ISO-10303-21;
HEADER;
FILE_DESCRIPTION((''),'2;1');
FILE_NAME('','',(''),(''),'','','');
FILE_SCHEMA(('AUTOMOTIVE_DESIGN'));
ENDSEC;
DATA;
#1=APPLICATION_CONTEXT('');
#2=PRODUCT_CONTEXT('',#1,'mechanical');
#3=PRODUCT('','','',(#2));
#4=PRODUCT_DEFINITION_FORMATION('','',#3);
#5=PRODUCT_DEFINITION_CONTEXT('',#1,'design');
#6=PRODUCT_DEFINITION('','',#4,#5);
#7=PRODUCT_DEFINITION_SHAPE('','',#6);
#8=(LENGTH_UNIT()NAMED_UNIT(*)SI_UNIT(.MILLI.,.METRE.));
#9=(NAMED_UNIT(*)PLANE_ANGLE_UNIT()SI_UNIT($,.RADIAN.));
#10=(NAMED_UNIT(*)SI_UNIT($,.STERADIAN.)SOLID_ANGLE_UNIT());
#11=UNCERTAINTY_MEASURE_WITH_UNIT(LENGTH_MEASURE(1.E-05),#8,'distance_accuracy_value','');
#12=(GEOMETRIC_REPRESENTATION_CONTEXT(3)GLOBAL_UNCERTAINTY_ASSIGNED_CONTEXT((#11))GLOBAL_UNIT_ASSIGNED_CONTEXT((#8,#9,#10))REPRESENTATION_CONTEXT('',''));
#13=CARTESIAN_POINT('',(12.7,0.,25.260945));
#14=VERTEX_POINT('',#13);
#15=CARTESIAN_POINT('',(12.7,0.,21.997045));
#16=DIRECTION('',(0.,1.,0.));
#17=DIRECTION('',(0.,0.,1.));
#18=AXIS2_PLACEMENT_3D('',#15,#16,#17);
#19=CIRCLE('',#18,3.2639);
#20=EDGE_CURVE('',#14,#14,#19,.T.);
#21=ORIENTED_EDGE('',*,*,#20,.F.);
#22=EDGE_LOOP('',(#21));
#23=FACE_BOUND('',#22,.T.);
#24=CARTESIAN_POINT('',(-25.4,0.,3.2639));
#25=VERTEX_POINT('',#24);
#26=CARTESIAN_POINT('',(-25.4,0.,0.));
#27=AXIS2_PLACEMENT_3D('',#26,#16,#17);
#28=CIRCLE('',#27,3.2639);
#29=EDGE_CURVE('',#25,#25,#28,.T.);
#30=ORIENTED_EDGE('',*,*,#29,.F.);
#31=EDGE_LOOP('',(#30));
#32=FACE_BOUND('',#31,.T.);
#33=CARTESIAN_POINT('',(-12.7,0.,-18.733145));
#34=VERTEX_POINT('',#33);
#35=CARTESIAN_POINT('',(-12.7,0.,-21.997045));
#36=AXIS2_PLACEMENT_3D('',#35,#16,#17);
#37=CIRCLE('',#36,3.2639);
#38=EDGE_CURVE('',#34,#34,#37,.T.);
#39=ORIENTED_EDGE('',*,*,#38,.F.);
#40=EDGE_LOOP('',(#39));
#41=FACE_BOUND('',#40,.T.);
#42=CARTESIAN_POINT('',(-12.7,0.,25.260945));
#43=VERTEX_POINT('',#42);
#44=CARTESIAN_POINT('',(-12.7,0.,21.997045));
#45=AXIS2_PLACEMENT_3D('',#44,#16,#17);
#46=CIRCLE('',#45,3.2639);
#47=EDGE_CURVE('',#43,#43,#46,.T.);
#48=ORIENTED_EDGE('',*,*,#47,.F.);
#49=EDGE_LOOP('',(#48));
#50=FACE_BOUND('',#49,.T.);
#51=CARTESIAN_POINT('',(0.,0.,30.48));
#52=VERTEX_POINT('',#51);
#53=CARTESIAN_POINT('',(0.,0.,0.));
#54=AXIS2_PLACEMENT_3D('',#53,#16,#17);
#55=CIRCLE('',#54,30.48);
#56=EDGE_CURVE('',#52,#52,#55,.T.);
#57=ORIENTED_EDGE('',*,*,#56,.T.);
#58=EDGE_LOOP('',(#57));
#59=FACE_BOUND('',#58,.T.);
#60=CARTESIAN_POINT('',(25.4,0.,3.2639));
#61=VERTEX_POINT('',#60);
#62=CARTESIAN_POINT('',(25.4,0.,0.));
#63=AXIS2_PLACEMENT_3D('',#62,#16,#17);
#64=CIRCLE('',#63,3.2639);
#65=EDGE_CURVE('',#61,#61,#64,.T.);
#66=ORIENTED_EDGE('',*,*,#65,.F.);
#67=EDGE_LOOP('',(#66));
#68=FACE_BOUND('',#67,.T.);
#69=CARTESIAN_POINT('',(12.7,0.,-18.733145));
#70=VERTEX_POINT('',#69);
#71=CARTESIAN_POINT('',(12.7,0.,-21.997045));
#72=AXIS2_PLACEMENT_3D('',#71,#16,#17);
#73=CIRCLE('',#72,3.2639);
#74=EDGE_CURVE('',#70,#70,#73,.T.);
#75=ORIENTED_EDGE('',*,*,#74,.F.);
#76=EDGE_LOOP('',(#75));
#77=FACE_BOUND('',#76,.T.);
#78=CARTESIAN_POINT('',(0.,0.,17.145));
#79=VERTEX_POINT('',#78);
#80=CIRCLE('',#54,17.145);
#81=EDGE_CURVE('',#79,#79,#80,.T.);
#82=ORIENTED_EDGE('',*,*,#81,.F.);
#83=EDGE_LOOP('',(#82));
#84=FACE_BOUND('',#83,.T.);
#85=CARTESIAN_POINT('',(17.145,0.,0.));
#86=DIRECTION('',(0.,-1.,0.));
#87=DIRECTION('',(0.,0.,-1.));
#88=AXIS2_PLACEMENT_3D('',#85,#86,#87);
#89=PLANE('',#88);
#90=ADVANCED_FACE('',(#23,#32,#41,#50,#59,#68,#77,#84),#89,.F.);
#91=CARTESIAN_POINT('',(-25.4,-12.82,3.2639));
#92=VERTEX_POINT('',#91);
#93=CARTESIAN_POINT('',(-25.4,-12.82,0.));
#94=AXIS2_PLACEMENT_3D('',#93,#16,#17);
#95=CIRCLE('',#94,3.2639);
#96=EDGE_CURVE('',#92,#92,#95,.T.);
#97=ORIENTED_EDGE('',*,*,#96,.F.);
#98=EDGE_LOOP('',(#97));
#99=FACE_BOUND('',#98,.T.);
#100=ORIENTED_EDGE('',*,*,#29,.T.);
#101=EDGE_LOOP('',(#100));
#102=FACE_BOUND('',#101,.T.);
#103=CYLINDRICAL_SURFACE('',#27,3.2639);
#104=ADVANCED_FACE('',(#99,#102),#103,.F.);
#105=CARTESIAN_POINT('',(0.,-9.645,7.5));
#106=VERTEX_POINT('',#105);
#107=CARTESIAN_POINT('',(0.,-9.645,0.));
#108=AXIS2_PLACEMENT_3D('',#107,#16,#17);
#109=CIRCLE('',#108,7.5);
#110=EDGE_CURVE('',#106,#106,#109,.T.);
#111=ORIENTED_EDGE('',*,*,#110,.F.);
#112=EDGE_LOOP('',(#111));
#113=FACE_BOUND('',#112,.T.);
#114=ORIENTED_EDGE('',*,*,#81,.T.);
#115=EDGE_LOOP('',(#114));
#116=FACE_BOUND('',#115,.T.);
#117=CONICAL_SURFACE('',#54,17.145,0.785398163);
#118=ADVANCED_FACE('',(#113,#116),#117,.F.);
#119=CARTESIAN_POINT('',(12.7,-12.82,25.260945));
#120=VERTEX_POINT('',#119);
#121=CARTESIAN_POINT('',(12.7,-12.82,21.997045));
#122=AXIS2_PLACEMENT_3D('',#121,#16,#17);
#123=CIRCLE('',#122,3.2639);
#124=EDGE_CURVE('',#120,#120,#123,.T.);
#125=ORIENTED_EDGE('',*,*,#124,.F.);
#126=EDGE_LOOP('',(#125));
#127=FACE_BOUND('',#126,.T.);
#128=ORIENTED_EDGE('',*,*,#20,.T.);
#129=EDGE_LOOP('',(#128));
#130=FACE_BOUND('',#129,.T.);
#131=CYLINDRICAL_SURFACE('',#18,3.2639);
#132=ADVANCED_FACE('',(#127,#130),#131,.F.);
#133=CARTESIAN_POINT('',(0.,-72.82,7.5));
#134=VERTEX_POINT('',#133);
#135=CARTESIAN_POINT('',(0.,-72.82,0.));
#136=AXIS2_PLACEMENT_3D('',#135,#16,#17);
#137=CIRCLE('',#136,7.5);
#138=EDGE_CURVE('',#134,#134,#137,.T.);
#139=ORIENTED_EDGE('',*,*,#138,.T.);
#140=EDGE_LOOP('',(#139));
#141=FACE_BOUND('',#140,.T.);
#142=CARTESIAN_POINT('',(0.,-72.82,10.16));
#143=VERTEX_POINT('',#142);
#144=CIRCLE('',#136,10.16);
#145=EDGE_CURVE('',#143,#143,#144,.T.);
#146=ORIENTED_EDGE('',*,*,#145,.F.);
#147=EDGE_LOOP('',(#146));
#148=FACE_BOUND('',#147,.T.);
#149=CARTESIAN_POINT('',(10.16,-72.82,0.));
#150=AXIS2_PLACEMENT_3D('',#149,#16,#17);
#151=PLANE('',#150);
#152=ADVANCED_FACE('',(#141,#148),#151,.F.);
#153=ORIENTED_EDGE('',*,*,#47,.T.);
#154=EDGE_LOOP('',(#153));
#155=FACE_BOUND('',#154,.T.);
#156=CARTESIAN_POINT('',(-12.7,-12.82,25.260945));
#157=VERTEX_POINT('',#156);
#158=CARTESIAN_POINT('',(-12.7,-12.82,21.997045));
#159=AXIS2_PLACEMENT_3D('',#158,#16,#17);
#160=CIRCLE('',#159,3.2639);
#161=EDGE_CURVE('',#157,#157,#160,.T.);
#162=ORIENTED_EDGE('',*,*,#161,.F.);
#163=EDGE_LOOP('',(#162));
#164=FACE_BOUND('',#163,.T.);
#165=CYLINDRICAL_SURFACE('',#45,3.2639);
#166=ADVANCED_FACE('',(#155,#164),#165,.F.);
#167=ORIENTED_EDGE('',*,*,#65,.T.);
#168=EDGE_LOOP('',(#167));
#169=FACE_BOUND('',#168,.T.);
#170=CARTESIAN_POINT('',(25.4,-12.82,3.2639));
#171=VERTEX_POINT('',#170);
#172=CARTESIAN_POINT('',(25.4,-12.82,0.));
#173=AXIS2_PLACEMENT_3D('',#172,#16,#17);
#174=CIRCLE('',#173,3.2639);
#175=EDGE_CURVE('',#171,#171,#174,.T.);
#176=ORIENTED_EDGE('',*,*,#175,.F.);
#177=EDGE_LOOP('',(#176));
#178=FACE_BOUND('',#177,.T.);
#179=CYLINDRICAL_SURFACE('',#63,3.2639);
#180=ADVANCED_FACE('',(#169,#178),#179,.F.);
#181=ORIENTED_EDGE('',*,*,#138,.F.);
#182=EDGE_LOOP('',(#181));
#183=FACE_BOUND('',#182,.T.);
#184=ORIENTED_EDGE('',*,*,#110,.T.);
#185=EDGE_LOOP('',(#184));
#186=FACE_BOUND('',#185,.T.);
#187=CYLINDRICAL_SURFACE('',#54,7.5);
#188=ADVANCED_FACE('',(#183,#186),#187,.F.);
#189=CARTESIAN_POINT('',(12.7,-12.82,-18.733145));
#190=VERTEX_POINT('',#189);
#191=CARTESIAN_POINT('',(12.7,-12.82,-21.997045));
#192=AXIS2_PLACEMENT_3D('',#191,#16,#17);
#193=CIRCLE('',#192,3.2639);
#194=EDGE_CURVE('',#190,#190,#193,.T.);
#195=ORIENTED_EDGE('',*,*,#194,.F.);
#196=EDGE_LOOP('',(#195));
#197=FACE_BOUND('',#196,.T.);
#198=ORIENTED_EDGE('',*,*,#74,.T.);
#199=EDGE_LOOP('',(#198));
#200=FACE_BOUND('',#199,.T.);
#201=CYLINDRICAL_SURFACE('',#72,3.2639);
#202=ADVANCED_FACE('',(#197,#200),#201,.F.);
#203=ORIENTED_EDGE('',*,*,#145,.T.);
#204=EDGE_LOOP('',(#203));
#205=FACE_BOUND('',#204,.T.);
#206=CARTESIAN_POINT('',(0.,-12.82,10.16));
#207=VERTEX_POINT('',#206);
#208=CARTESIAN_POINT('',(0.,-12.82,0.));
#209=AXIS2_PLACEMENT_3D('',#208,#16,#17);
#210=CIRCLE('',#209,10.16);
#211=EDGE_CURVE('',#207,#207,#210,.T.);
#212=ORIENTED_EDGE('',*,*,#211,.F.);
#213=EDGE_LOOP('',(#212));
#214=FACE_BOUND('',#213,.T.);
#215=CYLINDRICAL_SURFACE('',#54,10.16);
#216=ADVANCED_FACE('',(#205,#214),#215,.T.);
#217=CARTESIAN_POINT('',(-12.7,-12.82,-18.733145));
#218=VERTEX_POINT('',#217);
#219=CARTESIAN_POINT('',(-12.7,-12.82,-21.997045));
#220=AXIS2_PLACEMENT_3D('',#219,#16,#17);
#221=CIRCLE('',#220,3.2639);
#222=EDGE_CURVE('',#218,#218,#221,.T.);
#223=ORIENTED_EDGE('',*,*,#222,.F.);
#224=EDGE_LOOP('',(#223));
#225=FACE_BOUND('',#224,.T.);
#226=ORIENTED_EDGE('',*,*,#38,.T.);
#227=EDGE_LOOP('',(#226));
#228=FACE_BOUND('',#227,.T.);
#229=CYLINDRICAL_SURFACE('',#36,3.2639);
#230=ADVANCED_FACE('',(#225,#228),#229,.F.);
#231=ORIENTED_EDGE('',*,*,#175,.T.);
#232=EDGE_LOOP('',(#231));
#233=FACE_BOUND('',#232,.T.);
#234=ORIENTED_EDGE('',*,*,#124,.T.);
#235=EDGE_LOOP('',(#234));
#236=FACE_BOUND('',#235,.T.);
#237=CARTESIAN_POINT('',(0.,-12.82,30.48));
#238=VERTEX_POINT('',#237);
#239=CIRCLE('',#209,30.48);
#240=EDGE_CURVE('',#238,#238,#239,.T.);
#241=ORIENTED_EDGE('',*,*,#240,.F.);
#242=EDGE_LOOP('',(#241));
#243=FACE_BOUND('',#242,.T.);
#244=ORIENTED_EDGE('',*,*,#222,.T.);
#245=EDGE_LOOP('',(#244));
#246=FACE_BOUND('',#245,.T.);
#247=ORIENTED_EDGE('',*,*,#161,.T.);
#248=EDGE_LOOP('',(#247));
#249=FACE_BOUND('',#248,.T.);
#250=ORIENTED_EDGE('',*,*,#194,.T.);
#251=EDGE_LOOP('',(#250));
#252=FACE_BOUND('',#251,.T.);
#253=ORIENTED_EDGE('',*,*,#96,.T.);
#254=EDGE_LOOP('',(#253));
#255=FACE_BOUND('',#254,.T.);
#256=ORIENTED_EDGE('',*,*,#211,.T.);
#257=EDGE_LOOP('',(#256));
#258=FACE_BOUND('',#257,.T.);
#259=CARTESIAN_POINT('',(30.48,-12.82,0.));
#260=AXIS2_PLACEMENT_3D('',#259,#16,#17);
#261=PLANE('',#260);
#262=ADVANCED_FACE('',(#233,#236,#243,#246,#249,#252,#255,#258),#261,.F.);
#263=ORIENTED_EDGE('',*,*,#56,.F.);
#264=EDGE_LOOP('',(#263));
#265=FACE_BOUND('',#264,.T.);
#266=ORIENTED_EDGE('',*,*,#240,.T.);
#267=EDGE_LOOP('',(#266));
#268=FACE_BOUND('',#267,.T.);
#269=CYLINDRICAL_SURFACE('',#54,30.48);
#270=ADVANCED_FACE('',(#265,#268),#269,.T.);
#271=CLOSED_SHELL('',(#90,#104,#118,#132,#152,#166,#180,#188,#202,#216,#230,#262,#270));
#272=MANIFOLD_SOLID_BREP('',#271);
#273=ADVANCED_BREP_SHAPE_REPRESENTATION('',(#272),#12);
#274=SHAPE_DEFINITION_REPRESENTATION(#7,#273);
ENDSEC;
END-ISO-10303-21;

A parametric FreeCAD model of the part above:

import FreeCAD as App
import Part
import Sketcher
Q = App.Units.Quantity

doc = App.newDocument("Part")
body = doc.addObject("PartDesign::Body", "Body")

# Sketch on XY plane
sketch1 = body.newObject("Sketcher::SketchObject", "Sketch")
sketch1.AttachmentSupport = (doc.getObject("XY_Plane"), [""])
sketch1.MapMode = "FlatFace"
sketch1.addGeometry(Part.LineSegment(App.Vector(7.5, -9.645, 0), App.Vector(7.5, -72.82, 0)), False)
sketch1.addGeometry(Part.LineSegment(App.Vector(7.5, -72.82, 0), App.Vector(10.16, -72.82, 0)), False)
sketch1.addGeometry(Part.LineSegment(App.Vector(10.16, -72.82, 0), App.Vector(10.16, -12.82, 0)), False)
sketch1.addGeometry(Part.LineSegment(App.Vector(10.16, -12.82, 0), App.Vector(30.48, -12.82, 0)), False)
sketch1.addGeometry(Part.LineSegment(App.Vector(30.48, -12.82, 0), App.Vector(30.48, 0, 0)), False)
sketch1.addGeometry(Part.LineSegment(App.Vector(30.48, 0, 0), App.Vector(17.145, 0, 0)), False)
sketch1.addGeometry(Part.LineSegment(App.Vector(17.145, 0, 0), App.Vector(7.5, -9.645, 0)), False)
sketch1.addConstraint(Sketcher.Constraint("Coincident", 0, 2, 1, 1))
sketch1.addConstraint(Sketcher.Constraint("Coincident", 1, 2, 2, 1))
sketch1.addConstraint(Sketcher.Constraint("Coincident", 2, 2, 3, 1))
sketch1.addConstraint(Sketcher.Constraint("Coincident", 3, 2, 4, 1))
sketch1.addConstraint(Sketcher.Constraint("Coincident", 4, 2, 5, 1))
sketch1.addConstraint(Sketcher.Constraint("Coincident", 5, 2, 6, 1))
sketch1.addConstraint(Sketcher.Constraint("Coincident", 6, 2, 0, 1))
sketch1.addConstraint(Sketcher.Constraint("Vertical", 0))
sketch1.addConstraint(Sketcher.Constraint("Horizontal", 1))
sketch1.addConstraint(Sketcher.Constraint("Vertical", 2))
sketch1.addConstraint(Sketcher.Constraint("Horizontal", 3))
sketch1.addConstraint(Sketcher.Constraint("Vertical", 4))
sketch1.addConstraint(Sketcher.Constraint("Horizontal", 5))
sketch1.addConstraint(Sketcher.Constraint("PointOnObject", 4, 2, -1))
sketch1.addConstraint(Sketcher.Constraint("DistanceX", 3, 1, 3, 2, Q("0.8 in")))
sketch1.addConstraint(Sketcher.Constraint("Angle", 6, Q("-135 deg")))
sketch1.addConstraint(Sketcher.Constraint("DistanceX", -1, 1, 1, 2, Q("0.4 in")))
sketch1.addConstraint(Sketcher.Constraint("DistanceX", 5, 2, 5, 1, Q("0.525 in")))
sketch1.addConstraint(Sketcher.Constraint("DistanceY", 2, 2, 6, 2, Q("0.125 in")))
sketch1.addConstraint(Sketcher.Constraint("DistanceX", 1, 1, 1, 2, 2.66))
sketch1.addConstraint(Sketcher.Constraint("DistanceY", 0, 2, 0, 1, 63.175))
revolution = body.newObject("PartDesign::Revolution", "Revolution")
revolution.Profile = sketch1
revolution.ReferenceAxis = (sketch1, ["V_Axis"])
revolution.Angle = 360

# Sketch on XZ plane
sketch2 = body.newObject("Sketcher::SketchObject", "Sketch001")
sketch2.AttachmentSupport = (doc.getObject("XZ_Plane"), [""])
sketch2.MapMode = "FlatFace"
sketch2.addGeometry(Part.Circle(App.Vector(25.4, 0, 0), App.Vector(0, 0, 1), 3.2639), False)
sketch2.addConstraint(Sketcher.Constraint("PointOnObject", 0, 3, -1))
sketch2.addConstraint(Sketcher.Constraint("Diameter", 0, Q("0.257 in")))
sketch2.addConstraint(Sketcher.Constraint("DistanceX", -1, 1, 0, 3, Q("1 in")))
doc.recompute()
hole = body.newObject("PartDesign::Hole", "Hole")
hole.Profile = sketch2
hole.ThreadType = "None"
hole.Diameter = Q("0.257 in")
hole.DepthType = "ThroughAll"
hole.Reversed = True
doc.recompute()

polarpattern = body.newObject("PartDesign::PolarPattern", "PolarPattern")
polarpattern.Originals = [hole]
polarpattern.Axis = (doc.getObject("Y_Axis"), [""])
polarpattern.Angle = 360
polarpattern.Occurrences = 6
body.Tip = polarpattern

doc.recompute()
